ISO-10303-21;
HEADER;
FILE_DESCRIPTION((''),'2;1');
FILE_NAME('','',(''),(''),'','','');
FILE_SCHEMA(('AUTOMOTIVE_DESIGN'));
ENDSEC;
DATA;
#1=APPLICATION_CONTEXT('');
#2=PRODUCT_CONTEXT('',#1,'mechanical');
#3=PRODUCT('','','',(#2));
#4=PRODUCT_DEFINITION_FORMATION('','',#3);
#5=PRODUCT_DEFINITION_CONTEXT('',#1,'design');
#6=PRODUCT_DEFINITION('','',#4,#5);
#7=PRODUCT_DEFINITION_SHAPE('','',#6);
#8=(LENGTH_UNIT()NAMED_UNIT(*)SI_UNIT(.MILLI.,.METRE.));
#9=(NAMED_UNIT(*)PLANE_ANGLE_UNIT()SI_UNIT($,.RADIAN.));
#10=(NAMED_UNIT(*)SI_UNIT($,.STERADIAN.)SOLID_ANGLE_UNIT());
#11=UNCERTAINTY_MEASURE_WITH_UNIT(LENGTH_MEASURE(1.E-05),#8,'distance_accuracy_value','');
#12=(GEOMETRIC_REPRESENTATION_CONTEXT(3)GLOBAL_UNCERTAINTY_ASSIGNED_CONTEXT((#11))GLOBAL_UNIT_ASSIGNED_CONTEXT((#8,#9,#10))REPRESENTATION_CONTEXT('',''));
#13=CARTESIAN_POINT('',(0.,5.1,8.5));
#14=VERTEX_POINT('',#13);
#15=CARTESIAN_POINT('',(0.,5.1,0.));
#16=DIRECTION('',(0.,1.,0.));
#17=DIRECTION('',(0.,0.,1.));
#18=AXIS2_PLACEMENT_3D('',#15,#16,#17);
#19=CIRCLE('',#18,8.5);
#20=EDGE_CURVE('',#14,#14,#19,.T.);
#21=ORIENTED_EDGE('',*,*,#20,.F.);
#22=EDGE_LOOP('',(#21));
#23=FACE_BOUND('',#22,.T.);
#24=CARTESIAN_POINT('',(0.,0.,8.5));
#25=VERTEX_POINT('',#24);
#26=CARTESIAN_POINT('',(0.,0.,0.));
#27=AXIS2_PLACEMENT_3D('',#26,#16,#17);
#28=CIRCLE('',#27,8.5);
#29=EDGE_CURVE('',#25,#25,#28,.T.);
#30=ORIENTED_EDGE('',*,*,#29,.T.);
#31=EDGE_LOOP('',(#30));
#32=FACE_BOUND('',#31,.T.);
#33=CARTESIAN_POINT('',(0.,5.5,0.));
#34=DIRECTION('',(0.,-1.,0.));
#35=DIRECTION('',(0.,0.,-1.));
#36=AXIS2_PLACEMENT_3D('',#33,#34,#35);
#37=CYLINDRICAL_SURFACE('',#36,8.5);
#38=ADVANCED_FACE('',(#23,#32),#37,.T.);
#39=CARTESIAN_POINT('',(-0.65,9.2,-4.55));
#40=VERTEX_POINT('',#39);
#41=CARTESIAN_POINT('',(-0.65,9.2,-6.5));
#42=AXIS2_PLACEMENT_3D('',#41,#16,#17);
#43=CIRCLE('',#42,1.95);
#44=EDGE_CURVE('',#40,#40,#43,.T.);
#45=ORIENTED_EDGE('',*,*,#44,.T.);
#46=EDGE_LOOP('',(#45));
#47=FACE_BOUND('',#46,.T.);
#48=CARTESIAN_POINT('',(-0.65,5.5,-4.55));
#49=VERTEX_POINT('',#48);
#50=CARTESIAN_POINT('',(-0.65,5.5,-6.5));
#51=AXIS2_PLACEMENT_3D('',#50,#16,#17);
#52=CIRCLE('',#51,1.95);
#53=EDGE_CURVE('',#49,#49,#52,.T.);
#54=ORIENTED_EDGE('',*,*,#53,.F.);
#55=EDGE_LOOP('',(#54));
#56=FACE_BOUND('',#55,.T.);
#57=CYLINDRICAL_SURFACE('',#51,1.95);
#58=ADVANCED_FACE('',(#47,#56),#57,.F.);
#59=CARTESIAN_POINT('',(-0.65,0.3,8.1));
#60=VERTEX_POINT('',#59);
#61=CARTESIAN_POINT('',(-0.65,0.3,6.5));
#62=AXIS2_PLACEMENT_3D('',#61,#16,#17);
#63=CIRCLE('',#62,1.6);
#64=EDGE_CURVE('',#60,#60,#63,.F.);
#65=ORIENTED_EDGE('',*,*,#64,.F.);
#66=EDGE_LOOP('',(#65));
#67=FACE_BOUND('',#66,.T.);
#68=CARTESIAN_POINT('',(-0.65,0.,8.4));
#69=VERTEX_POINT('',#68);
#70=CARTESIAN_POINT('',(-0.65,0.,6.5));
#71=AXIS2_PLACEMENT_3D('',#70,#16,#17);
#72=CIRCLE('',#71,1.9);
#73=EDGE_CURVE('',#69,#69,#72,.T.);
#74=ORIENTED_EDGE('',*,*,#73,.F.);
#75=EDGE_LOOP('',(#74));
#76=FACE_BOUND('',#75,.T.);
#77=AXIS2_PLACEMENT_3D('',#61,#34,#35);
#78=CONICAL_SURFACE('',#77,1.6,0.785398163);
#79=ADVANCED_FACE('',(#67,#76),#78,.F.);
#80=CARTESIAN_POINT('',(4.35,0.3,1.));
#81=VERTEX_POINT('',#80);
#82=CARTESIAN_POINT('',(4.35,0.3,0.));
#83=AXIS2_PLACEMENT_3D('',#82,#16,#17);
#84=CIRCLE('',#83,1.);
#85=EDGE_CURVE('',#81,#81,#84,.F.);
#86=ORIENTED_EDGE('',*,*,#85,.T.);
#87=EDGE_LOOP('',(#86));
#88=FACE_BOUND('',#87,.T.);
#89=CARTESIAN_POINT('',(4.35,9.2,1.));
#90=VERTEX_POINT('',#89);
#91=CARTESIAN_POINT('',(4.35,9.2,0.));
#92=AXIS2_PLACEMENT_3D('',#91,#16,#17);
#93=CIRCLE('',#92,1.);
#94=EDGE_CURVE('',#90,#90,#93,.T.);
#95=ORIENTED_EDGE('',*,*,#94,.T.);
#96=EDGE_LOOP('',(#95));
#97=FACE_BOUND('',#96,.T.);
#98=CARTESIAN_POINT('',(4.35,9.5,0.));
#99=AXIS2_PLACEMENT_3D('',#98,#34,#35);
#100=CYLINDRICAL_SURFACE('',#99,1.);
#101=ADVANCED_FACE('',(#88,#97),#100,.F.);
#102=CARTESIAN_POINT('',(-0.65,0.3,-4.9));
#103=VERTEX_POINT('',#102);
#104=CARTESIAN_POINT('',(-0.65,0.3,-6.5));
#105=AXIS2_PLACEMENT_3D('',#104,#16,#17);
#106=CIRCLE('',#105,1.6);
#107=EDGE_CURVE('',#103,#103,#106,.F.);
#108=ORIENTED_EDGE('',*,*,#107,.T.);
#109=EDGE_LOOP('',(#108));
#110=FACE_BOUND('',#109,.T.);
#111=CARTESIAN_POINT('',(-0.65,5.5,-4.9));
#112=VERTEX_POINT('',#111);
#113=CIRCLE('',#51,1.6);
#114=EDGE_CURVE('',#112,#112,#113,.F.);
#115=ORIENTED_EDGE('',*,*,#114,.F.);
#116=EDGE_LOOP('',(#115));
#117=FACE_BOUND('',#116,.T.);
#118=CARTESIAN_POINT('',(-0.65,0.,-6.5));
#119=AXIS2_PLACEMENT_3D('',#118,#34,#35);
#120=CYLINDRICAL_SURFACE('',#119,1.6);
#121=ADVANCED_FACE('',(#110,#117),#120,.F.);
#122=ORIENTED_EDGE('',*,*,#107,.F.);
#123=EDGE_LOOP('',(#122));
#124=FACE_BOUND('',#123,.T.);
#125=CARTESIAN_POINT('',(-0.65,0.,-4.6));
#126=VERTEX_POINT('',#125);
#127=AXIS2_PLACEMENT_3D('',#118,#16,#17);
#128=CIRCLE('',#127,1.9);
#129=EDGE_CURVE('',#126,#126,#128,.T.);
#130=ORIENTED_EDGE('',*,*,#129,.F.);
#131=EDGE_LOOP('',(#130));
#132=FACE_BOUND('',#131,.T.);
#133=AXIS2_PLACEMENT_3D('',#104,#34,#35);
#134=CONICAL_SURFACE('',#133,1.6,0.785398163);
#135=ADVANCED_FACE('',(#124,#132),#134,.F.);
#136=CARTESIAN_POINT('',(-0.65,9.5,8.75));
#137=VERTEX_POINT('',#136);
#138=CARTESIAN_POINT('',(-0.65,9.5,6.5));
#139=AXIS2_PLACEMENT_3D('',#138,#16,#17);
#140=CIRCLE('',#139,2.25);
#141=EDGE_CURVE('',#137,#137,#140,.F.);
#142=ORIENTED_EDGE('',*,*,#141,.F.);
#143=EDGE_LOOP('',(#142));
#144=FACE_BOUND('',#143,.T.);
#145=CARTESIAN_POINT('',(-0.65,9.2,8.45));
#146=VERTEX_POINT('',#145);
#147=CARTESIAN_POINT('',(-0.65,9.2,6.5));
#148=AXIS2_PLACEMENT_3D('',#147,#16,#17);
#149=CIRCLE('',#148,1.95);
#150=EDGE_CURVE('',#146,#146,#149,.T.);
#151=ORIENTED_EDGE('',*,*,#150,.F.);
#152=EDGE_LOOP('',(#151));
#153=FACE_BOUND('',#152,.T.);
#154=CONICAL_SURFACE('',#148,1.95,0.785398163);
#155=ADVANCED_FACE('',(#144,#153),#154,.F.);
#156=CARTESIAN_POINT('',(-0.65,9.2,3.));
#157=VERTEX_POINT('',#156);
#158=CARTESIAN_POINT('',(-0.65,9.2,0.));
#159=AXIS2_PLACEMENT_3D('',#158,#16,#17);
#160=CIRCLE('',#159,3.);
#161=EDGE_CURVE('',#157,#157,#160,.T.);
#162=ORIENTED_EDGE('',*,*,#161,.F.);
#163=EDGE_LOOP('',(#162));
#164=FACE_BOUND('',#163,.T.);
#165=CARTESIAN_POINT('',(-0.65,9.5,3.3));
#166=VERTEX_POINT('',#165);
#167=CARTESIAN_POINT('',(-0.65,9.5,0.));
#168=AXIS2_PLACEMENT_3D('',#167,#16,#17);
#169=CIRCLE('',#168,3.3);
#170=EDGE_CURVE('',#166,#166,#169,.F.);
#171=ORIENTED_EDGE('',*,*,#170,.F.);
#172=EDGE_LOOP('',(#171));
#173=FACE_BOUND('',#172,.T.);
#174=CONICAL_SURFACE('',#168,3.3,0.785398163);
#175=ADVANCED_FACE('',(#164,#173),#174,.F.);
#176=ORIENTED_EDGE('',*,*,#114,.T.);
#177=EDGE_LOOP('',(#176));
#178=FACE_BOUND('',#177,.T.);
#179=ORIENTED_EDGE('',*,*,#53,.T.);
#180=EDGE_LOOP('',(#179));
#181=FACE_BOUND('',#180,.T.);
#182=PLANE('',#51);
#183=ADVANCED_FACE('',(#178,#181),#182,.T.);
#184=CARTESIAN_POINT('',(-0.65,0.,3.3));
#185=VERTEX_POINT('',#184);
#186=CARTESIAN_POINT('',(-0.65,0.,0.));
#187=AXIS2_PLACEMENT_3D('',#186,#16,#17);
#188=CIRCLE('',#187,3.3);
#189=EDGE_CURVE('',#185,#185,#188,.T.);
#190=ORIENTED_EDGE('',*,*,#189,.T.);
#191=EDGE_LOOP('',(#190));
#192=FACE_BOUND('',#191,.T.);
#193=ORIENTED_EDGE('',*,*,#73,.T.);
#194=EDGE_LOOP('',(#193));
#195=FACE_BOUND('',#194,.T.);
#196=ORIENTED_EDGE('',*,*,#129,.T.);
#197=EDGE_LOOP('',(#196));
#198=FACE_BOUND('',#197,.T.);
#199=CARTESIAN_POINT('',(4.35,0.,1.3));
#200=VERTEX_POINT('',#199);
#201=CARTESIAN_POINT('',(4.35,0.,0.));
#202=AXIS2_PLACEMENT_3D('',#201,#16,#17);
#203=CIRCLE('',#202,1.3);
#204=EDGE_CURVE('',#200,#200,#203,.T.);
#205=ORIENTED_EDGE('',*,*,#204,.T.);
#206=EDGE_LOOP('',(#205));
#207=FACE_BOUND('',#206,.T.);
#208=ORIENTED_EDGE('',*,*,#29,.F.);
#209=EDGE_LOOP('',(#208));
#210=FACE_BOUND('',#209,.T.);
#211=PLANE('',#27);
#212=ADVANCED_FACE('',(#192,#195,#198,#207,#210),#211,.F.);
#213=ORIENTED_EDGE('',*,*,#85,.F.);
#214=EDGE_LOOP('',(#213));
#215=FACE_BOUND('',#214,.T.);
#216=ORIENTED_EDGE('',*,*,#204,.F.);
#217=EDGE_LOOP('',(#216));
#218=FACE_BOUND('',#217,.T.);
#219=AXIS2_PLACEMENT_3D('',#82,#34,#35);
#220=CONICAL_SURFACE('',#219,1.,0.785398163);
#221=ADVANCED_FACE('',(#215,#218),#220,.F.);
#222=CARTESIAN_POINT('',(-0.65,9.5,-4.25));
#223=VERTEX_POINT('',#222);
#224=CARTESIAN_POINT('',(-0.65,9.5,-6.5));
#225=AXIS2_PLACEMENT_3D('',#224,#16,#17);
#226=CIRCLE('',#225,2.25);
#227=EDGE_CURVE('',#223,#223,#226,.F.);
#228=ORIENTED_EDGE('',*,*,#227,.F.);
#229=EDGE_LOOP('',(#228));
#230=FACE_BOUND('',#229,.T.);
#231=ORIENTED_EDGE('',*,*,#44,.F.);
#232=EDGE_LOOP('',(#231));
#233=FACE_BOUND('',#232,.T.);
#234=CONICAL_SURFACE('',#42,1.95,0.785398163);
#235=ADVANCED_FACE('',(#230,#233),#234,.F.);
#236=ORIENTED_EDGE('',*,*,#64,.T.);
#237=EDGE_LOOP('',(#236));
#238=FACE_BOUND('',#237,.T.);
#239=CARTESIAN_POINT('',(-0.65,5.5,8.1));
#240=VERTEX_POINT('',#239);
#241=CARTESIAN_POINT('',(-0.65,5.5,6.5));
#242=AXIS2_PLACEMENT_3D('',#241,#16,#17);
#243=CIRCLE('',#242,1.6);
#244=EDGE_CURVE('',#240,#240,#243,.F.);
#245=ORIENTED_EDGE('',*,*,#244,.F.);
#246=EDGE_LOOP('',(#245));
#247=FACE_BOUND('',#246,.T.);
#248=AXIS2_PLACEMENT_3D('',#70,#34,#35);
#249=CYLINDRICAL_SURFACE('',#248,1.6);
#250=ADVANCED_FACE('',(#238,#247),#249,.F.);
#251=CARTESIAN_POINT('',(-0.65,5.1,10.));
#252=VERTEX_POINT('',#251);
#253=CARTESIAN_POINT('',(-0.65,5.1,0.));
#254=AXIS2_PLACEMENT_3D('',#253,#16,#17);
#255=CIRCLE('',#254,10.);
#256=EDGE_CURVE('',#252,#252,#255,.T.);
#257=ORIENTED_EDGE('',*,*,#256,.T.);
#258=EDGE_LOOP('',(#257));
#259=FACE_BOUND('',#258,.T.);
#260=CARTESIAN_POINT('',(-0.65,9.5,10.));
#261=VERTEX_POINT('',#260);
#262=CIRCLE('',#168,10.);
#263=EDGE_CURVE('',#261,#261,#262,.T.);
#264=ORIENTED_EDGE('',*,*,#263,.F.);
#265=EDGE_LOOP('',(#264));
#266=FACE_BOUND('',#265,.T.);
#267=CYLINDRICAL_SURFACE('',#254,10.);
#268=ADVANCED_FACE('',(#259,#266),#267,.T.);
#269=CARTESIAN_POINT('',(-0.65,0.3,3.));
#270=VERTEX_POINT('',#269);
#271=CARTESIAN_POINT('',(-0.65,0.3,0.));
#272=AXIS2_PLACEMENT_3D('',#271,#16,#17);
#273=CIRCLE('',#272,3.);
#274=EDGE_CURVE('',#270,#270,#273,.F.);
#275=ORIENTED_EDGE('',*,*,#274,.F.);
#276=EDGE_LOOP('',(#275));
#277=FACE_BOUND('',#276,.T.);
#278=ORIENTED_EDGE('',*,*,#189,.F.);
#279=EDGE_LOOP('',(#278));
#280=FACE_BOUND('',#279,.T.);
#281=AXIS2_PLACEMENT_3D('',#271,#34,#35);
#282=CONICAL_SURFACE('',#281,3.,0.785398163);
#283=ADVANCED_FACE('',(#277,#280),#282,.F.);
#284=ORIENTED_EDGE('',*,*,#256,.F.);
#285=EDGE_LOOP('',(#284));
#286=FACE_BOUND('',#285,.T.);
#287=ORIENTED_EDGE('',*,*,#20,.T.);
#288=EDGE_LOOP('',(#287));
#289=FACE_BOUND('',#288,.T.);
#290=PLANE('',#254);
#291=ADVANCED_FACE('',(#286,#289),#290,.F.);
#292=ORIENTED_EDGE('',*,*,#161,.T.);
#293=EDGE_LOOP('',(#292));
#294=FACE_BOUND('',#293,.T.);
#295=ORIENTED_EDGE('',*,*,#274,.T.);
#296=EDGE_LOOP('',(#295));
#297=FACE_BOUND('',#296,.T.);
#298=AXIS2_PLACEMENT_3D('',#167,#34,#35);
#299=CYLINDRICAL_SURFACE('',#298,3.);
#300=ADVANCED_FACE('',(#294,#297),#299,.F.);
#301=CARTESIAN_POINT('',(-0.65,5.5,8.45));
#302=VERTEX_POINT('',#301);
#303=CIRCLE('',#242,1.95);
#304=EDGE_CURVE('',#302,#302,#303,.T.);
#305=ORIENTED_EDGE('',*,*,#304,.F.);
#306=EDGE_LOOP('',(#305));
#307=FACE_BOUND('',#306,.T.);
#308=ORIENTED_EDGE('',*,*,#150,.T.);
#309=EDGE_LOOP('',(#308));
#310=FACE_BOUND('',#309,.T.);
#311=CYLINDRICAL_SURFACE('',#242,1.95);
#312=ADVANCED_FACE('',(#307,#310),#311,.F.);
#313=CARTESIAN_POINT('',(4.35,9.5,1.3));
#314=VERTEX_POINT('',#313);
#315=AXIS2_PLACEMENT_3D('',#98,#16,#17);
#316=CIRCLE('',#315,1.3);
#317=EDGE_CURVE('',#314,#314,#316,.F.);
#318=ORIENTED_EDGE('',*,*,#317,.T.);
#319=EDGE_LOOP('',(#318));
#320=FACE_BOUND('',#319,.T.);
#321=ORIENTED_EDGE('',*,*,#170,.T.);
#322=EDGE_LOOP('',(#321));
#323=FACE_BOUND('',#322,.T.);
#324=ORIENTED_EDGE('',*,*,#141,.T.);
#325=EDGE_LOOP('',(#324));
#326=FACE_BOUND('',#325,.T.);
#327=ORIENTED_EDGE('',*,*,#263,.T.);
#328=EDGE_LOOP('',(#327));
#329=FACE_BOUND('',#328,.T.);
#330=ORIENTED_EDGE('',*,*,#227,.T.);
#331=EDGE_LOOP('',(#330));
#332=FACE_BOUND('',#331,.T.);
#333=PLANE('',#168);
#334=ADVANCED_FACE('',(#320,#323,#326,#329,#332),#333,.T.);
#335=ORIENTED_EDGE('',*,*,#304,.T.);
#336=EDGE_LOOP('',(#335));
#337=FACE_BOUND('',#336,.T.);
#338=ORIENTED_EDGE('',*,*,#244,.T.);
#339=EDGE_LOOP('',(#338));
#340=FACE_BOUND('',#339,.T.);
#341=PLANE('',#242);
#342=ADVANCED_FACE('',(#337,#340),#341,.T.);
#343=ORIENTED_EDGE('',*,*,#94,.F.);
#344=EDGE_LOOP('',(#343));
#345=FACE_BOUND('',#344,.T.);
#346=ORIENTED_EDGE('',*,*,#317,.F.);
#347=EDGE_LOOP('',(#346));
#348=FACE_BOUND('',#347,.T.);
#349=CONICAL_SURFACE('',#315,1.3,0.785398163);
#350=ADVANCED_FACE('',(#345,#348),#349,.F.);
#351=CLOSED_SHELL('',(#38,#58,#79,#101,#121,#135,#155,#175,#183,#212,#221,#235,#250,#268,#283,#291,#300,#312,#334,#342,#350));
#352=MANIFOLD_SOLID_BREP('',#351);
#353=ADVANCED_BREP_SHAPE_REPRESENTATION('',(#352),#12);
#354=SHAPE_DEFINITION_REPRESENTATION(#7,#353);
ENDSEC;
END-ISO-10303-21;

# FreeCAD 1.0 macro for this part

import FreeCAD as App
import Part
import Sketcher
Q = App.Units.Quantity


def edges_at(feature, points):
    """Names of the edges that pass closest to the given points."""
    edges = feature.Shape.Edges
    near = lambda p: min(range(len(edges)), key=lambda i: edges[i].distToShape(Part.Vertex(*p))[0])
    return sorted({f"Edge{near(p) + 1}" for p in points})

doc = App.newDocument("Part")
body = doc.addObject("PartDesign::Body", "Body")

sketch1 = doc.addObject("Sketcher::SketchObject", "Sketch")
body.addObject(sketch1)
sketch1.AttachmentSupport = (doc.XZ_Plane, [""])
sketch1.MapMode = "FlatFace"
sketch1.addGeometry(Part.Circle(App.Vector(0, 0, 0), App.Vector(0, 0, 1), 8.5), False)
sketch1.addConstraint(Sketcher.Constraint("Coincident", 0, 3, -1, 1))
sketch1.addConstraint(Sketcher.Constraint("Diameter", 0, Q("17 mm")))
pad1 = doc.addObject("PartDesign::Pad", "Pad")
body.addObject(pad1)
pad1.Profile = sketch1
pad1.Length = 5.5
pad1.Reversed = True

sketch2 = doc.addObject("Sketcher::SketchObject", "Sketch001")
body.addObject(sketch2)
sketch2.AttachmentSupport = (doc.XZ_Plane, [""])
sketch2.MapMode = "FlatFace"
sketch2.AttachmentOffset = App.Placement(App.Vector(0, 0, -5.5), App.Rotation())
sketch2.addGeometry(Part.Circle(App.Vector(-0.65, 0, 0), App.Vector(0, 0, 1), 10), False)
sketch2.addConstraint(Sketcher.Constraint("PointOnObject", 0, 3, -1))
sketch2.addConstraint(Sketcher.Constraint("Diameter", 0, Q("20 mm")))
sketch2.addConstraint(Sketcher.Constraint("DistanceX", 0, 3, -1, 1, Q("0.65 mm")))
pad2 = doc.addObject("PartDesign::Pad", "Pad001")
body.addObject(pad2)
pad2.Profile = sketch2
pad2.Type = "TwoLengths"
pad2.Length = 4
pad2.Length2 = 0.4
pad2.Reversed = True

sketch3 = doc.addObject("Sketcher::SketchObject", "Sketch002")
body.addObject(sketch3)
sketch3.AttachmentSupport = (doc.XZ_Plane, [""])
sketch3.MapMode = "FlatFace"
sketch3.addGeometry(Part.Circle(App.Vector(-0.65, 0, 0), App.Vector(0, 0, 1), 3), False)
sketch3.addConstraint(Sketcher.Constraint("PointOnObject", 0, 3, -1))
sketch3.addConstraint(Sketcher.Constraint("Diameter", 0, Q("6 mm")))
sketch3.addConstraint(Sketcher.Constraint("DistanceX", 0, 3, -1, 1, Q("0.65 mm")))
pocket1 = doc.addObject("PartDesign::Pocket", "Pocket")
body.addObject(pocket1)
pocket1.Profile = sketch3
pocket1.Type = "ThroughAll"

sketch4 = doc.addObject("Sketcher::SketchObject", "Sketch003")
body.addObject(sketch4)
sketch4.AttachmentSupport = (doc.XZ_Plane, [""])
sketch4.MapMode = "FlatFace"
sketch4.addGeometry(Part.Circle(App.Vector(4.35, 0, 0), App.Vector(0, 0, 1), 1), False)
sketch4.addConstraint(Sketcher.Constraint("PointOnObject", 0, 3, -1))
sketch4.addConstraint(Sketcher.Constraint("Diameter", 0, Q("2 mm")))
sketch4.addConstraint(Sketcher.Constraint("DistanceX", -1, 1, 0, 3, Q("4.35 mm")))
pocket2 = doc.addObject("PartDesign::Pocket", "Pocket001")
body.addObject(pocket2)
pocket2.Profile = sketch4
pocket2.Type = "ThroughAll"

sketch5 = doc.addObject("Sketcher::SketchObject", "Sketch004")
body.addObject(sketch5)
sketch5.AttachmentSupport = (doc.XZ_Plane, [""])
sketch5.MapMode = "FlatFace"
sketch5.addGeometry(Part.Circle(App.Vector(-0.65, -6.5, 0), App.Vector(0, 0, 1), 1.6), False)
sketch5.addGeometry(Part.Circle(App.Vector(-0.65, 6.5, 0), App.Vector(0, 0, 1), 1.6), False)
sketch5.addConstraint(Sketcher.Constraint("Equal", 0, 1))
sketch5.addConstraint(Sketcher.Constraint("Symmetric", 0, 3, 1, 3, -1))
sketch5.addConstraint(Sketcher.Constraint("Diameter", 0, Q("3.2 mm")))
sketch5.addConstraint(Sketcher.Constraint("DistanceY", 0, 3, 1, 3, Q("13 mm")))
sketch5.addConstraint(Sketcher.Constraint("DistanceX", 0, 3, -1, 1, Q("0.65 mm")))
doc.recompute()
hole = doc.addObject("PartDesign::Hole", "Hole")
body.addObject(hole)
hole.Profile = sketch5
hole.ThreadType = "None"
hole.Diameter = 3.2
hole.DepthType = "ThroughAll"

sketch6 = doc.addObject("Sketcher::SketchObject", "Sketch005")
body.addObject(sketch6)
sketch6.AttachmentSupport = (doc.XZ_Plane, [""])
sketch6.MapMode = "FlatFace"
sketch6.AttachmentOffset = App.Placement(App.Vector(0, 0, -9.5), App.Rotation())
sketch6.addGeometry(Part.Circle(App.Vector(-0.65, -6.5, 0), App.Vector(0, 0, 1), 1.95), False)
sketch6.addGeometry(Part.Circle(App.Vector(-0.65, 6.5, 0), App.Vector(0, 0, 1), 1.95), False)
sketch6.addConstraint(Sketcher.Constraint("Equal", 0, 1))
sketch6.addConstraint(Sketcher.Constraint("Symmetric", 0, 3, 1, 3, -1))
sketch6.addConstraint(Sketcher.Constraint("Diameter", 0, Q("3.9 mm")))
sketch6.addConstraint(Sketcher.Constraint("DistanceY", 0, 3, 1, 3, Q("13 mm")))
sketch6.addConstraint(Sketcher.Constraint("DistanceX", 0, 3, -1, 1, Q("0.65 mm")))
pocket3 = doc.addObject("PartDesign::Pocket", "Pocket002")
body.addObject(pocket3)
pocket3.Profile = sketch6
pocket3.Length = 4
pocket3.Reversed = True
doc.recompute()

chamfer = doc.addObject("PartDesign::Chamfer", "Chamfer")
body.addObject(chamfer)
chamfer.Base = (pocket3, edges_at(pocket3, [
    (-0.65, 9.5, 3),
    (-0.65, 0, 3),
    (4.35, 9.5, 1),
    (4.35, 0, 1),
    (-2.25, 0, 6.5),
    (-2.25, 0, -6.5),
    (-0.65, 9.5, -8.45),
    (-0.65, 9.5, 4.55),
]))
chamfer.Size = 0.3

doc.recompute()
